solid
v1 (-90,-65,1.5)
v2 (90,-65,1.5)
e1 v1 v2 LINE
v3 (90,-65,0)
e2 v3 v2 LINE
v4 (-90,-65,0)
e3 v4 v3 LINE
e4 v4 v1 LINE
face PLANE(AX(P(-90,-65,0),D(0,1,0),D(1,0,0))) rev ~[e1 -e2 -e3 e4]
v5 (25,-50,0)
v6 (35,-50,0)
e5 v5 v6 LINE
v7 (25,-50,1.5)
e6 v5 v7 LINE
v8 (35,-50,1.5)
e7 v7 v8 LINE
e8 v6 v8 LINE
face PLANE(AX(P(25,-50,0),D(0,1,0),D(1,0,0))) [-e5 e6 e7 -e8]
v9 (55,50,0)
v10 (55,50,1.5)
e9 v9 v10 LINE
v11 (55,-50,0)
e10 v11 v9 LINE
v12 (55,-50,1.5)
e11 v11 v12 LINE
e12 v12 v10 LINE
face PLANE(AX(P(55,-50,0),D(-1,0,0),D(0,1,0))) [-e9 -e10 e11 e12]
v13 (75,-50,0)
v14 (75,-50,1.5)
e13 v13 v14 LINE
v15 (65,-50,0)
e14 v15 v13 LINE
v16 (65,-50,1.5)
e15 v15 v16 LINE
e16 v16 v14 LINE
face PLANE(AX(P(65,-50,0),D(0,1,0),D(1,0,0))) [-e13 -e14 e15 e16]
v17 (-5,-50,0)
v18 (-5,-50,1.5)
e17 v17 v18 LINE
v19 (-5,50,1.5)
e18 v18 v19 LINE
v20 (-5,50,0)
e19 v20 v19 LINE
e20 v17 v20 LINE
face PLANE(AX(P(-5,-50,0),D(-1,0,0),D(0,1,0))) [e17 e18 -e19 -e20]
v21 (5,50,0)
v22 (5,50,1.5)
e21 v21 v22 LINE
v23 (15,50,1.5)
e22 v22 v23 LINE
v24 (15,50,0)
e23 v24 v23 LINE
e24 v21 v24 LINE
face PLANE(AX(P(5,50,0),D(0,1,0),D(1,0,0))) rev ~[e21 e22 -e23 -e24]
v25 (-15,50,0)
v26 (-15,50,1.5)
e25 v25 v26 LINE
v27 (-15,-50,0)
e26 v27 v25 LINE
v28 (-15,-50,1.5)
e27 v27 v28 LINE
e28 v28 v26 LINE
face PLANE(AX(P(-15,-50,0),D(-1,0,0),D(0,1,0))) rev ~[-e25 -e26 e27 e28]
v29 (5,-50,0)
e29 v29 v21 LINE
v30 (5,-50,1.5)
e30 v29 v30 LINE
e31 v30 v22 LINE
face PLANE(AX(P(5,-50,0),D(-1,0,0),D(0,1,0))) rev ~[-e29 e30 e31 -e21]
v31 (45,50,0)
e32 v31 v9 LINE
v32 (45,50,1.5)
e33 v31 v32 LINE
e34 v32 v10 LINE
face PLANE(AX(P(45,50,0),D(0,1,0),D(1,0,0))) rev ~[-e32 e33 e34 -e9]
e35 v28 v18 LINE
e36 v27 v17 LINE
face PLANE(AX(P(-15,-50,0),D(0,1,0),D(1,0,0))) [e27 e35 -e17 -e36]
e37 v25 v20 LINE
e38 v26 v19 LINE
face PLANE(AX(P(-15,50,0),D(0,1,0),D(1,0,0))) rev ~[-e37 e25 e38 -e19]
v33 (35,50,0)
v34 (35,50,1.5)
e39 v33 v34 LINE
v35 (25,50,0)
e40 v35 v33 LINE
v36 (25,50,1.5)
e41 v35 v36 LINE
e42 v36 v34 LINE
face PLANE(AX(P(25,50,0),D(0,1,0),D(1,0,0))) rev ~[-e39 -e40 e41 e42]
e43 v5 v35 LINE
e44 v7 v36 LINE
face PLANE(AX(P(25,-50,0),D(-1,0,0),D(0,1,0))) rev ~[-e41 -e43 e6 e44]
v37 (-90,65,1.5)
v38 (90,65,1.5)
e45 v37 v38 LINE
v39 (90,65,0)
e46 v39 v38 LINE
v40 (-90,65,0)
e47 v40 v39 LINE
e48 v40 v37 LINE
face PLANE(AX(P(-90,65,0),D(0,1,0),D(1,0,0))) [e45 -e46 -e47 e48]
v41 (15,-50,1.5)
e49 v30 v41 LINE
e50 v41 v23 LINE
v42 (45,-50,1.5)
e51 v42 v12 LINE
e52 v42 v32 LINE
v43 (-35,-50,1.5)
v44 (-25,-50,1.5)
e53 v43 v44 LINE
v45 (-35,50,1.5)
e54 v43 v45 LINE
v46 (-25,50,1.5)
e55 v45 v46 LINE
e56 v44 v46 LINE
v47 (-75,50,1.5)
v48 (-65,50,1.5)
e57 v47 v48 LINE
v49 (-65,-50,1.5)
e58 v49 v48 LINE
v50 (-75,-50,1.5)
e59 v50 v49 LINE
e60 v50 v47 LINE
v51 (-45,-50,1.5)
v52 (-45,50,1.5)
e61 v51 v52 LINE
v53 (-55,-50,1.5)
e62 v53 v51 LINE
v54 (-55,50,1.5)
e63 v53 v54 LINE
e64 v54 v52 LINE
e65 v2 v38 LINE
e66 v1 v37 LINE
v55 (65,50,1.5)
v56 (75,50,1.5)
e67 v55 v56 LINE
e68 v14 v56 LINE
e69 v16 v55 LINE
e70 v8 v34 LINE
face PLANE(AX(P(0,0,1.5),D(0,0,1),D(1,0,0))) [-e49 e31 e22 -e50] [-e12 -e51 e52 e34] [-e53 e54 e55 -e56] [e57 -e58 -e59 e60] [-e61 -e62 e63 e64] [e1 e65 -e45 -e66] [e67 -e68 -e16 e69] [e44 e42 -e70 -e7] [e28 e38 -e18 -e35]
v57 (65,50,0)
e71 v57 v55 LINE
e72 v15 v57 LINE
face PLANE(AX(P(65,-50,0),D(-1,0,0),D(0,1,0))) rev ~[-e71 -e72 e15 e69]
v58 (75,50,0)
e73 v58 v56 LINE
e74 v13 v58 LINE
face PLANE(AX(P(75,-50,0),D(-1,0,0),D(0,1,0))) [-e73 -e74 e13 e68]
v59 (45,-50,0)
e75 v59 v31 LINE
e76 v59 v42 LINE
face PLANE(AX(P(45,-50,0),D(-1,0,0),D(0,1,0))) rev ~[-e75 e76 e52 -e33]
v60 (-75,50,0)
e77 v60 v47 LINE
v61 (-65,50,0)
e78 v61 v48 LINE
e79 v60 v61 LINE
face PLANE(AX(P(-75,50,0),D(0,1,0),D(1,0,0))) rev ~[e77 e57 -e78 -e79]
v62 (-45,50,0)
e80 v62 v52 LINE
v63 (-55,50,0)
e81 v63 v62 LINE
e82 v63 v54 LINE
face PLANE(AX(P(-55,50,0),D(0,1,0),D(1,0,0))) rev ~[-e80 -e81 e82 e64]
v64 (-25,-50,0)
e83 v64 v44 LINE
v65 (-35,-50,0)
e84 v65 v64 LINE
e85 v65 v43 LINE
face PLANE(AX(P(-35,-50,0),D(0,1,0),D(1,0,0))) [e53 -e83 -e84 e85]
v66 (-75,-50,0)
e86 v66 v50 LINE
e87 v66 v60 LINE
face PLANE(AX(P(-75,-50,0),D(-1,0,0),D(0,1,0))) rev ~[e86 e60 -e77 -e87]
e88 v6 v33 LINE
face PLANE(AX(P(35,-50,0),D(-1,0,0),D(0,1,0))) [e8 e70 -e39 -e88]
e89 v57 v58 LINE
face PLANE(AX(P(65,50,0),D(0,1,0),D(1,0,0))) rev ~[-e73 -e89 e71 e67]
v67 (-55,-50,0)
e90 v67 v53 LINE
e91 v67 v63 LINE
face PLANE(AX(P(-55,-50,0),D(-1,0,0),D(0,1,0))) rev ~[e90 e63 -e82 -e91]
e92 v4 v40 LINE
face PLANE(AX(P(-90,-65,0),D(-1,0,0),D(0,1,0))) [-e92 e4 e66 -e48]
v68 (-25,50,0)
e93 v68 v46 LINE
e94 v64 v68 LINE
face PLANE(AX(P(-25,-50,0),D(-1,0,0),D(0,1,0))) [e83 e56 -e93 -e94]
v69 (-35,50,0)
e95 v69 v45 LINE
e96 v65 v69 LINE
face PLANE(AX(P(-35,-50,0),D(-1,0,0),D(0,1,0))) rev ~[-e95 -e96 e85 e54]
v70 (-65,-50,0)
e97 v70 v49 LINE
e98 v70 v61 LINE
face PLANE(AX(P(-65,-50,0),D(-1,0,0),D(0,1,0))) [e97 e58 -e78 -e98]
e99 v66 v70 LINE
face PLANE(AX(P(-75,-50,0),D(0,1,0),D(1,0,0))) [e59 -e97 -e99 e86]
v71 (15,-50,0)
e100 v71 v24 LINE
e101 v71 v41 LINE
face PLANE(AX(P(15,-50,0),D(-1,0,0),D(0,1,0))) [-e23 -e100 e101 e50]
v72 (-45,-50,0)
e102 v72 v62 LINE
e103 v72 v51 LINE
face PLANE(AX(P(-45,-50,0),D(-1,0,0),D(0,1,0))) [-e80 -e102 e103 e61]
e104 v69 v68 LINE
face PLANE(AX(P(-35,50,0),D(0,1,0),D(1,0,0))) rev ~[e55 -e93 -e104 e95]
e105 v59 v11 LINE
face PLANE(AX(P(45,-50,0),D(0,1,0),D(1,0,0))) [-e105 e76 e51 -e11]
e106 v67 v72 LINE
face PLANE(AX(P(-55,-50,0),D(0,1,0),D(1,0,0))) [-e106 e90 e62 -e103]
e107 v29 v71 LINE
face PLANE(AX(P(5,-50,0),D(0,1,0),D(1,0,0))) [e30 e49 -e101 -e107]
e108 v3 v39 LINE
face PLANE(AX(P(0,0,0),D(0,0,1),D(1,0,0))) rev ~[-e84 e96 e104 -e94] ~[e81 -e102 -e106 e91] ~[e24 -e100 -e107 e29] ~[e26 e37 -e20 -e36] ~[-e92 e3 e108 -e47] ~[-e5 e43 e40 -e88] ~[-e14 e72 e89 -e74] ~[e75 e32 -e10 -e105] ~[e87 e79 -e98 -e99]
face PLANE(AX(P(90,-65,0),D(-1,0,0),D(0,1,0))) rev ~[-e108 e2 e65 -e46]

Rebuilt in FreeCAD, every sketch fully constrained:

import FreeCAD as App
import Part
import Sketcher

V = App.Vector


def add_polygon(sketch, points):
    """Adds a closed chain of lines whose ends are joined by coincident constraints."""
    first, n = sketch.GeometryCount, len(points)
    for a, b in zip(points, points[1:] + points[:1]):
        sketch.addGeometry(Part.LineSegment(App.Vector(*a, 0), App.Vector(*b, 0)), False)
    for i in range(n):
        sketch.addConstraint(Sketcher.Constraint("Coincident", first + i, 2, first + (i + 1) % n, 1))

doc = App.newDocument("Part")
body = doc.addObject("PartDesign::Body", "Body")

sketch1 = body.newObject("Sketcher::SketchObject", "Sketch")
sketch1.AttachmentSupport = (doc.getObject("XY_Plane"), [""])
sketch1.MapMode = "FlatFace"
add_polygon(sketch1, [(-90, 65), (-90, -65), (90, -65), (90, 65)])
add_polygon(sketch1, [(-65, -50), (-75, -50), (-75, 50), (-65, 50)])
add_polygon(sketch1, [(-45, -50), (-55, -50), (-55, 50), (-45, 50)])
add_polygon(sketch1, [(-25, -50), (-35, -50), (-35, 50), (-25, 50)])
add_polygon(sketch1, [(-5, -50), (-15, -50), (-15, 50), (-5, 50)])
add_polygon(sketch1, [(15, -50), (5, -50), (5, 50), (15, 50)])
add_polygon(sketch1, [(35, -50), (25, -50), (25, 50), (35, 50)])
add_polygon(sketch1, [(55, -50), (45, -50), (45, 50), (55, 50)])
add_polygon(sketch1, [(75, -50), (65, -50), (65, 50), (75, 50)])
sketch1.addConstraint([
    Sketcher.Constraint("Vertical", 0),
    Sketcher.Constraint("Horizontal", 1),
    Sketcher.Constraint("Vertical", 2),
    Sketcher.Constraint("Horizontal", 3),
    Sketcher.Constraint("Horizontal", 4),
    Sketcher.Constraint("Vertical", 5),
    Sketcher.Constraint("Horizontal", 6),
    Sketcher.Constraint("Vertical", 7),
    Sketcher.Constraint("Horizontal", 8),
    Sketcher.Constraint("Vertical", 9),
    Sketcher.Constraint("Horizontal", 10),
    Sketcher.Constraint("Vertical", 11),
    Sketcher.Constraint("Horizontal", 12),
    Sketcher.Constraint("Vertical", 13),
    Sketcher.Constraint("Horizontal", 14),
    Sketcher.Constraint("Vertical", 15),
    Sketcher.Constraint("Horizontal", 16),
    Sketcher.Constraint("Vertical", 17),
    Sketcher.Constraint("Horizontal", 18),
    Sketcher.Constraint("Vertical", 19),
    Sketcher.Constraint("Horizontal", 20),
    Sketcher.Constraint("Vertical", 21),
    Sketcher.Constraint("Horizontal", 22),
    Sketcher.Constraint("Vertical", 23),
    Sketcher.Constraint("Horizontal", 24),
    Sketcher.Constraint("Vertical", 25),
    Sketcher.Constraint("Horizontal", 26),
    Sketcher.Constraint("Vertical", 27),
    Sketcher.Constraint("Horizontal", 28),
    Sketcher.Constraint("Vertical", 29),
    Sketcher.Constraint("Horizontal", 30),
    Sketcher.Constraint("Vertical", 31),
    Sketcher.Constraint("Horizontal", 32),
    Sketcher.Constraint("Vertical", 33),
    Sketcher.Constraint("Horizontal", 34),
    Sketcher.Constraint("Vertical", 35),
    Sketcher.Constraint("Symmetric", 0, 2, 2, 2, -1, 1),
    Sketcher.Constraint("Symmetric", 18, 2, 20, 2, -1, 1),
    Sketcher.Constraint("Symmetric", 16, 2, 22, 2, -1, 1),
    Sketcher.Constraint("Symmetric", 14, 2, 24, 2, -1, 1),
    Sketcher.Constraint("Symmetric", 12, 2, 26, 2, -1, 1),
    Sketcher.Constraint("Symmetric", 10, 2, 28, 2, -1, 1),
    Sketcher.Constraint("Symmetric", 8, 2, 30, 2, -1, 1),
    Sketcher.Constraint("Symmetric", 6, 2, 32, 2, -1, 1),
    Sketcher.Constraint("Symmetric", 4, 2, 34, 2, -1, 1),
    Sketcher.Constraint("Horizontal", 7, 2, 8, 2),
    Sketcher.Constraint("Horizontal", 6, 2, 9, 2),
    Sketcher.Constraint("Horizontal", 11, 2, 12, 2),
    Sketcher.Constraint("Horizontal", 10, 2, 13, 2),
    Sketcher.Constraint("Horizontal", 15, 2, 16, 2),
    Sketcher.Constraint("Horizontal", 14, 2, 17, 2),
    Sketcher.Constraint("Horizontal", 19, 2, 20, 2),
    Sketcher.Constraint("Equal", 6, 8),
    Sketcher.Constraint("Equal", 10, 12),
    Sketcher.Constraint("Equal", 14, 16),
    Sketcher.Constraint("DistanceX", 1, 1, 1, 2, 180.0),
    Sketcher.Constraint("DistanceX", 4, 2, 4, 1, 10.0),
    Sketcher.Constraint("DistanceY", 0, 2, 0, 1, 130.0),
    Sketcher.Constraint("DistanceY", 5, 1, 5, 2, 100.0),
    Sketcher.Constraint("DistanceX", 4, 2, -1, 1, 75.0),
    Sketcher.Constraint("DistanceX", 8, 2, -1, 1, 55.0),
    Sketcher.Constraint("DistanceX", 12, 2, -1, 1, 35.0),
    Sketcher.Constraint("DistanceX", 16, 2, -1, 1, 15.0),
])
pad1 = body.newObject("PartDesign::Pad", "Pad")
pad1.Profile = sketch1
pad1.Length = 1.5

doc.recompute()
